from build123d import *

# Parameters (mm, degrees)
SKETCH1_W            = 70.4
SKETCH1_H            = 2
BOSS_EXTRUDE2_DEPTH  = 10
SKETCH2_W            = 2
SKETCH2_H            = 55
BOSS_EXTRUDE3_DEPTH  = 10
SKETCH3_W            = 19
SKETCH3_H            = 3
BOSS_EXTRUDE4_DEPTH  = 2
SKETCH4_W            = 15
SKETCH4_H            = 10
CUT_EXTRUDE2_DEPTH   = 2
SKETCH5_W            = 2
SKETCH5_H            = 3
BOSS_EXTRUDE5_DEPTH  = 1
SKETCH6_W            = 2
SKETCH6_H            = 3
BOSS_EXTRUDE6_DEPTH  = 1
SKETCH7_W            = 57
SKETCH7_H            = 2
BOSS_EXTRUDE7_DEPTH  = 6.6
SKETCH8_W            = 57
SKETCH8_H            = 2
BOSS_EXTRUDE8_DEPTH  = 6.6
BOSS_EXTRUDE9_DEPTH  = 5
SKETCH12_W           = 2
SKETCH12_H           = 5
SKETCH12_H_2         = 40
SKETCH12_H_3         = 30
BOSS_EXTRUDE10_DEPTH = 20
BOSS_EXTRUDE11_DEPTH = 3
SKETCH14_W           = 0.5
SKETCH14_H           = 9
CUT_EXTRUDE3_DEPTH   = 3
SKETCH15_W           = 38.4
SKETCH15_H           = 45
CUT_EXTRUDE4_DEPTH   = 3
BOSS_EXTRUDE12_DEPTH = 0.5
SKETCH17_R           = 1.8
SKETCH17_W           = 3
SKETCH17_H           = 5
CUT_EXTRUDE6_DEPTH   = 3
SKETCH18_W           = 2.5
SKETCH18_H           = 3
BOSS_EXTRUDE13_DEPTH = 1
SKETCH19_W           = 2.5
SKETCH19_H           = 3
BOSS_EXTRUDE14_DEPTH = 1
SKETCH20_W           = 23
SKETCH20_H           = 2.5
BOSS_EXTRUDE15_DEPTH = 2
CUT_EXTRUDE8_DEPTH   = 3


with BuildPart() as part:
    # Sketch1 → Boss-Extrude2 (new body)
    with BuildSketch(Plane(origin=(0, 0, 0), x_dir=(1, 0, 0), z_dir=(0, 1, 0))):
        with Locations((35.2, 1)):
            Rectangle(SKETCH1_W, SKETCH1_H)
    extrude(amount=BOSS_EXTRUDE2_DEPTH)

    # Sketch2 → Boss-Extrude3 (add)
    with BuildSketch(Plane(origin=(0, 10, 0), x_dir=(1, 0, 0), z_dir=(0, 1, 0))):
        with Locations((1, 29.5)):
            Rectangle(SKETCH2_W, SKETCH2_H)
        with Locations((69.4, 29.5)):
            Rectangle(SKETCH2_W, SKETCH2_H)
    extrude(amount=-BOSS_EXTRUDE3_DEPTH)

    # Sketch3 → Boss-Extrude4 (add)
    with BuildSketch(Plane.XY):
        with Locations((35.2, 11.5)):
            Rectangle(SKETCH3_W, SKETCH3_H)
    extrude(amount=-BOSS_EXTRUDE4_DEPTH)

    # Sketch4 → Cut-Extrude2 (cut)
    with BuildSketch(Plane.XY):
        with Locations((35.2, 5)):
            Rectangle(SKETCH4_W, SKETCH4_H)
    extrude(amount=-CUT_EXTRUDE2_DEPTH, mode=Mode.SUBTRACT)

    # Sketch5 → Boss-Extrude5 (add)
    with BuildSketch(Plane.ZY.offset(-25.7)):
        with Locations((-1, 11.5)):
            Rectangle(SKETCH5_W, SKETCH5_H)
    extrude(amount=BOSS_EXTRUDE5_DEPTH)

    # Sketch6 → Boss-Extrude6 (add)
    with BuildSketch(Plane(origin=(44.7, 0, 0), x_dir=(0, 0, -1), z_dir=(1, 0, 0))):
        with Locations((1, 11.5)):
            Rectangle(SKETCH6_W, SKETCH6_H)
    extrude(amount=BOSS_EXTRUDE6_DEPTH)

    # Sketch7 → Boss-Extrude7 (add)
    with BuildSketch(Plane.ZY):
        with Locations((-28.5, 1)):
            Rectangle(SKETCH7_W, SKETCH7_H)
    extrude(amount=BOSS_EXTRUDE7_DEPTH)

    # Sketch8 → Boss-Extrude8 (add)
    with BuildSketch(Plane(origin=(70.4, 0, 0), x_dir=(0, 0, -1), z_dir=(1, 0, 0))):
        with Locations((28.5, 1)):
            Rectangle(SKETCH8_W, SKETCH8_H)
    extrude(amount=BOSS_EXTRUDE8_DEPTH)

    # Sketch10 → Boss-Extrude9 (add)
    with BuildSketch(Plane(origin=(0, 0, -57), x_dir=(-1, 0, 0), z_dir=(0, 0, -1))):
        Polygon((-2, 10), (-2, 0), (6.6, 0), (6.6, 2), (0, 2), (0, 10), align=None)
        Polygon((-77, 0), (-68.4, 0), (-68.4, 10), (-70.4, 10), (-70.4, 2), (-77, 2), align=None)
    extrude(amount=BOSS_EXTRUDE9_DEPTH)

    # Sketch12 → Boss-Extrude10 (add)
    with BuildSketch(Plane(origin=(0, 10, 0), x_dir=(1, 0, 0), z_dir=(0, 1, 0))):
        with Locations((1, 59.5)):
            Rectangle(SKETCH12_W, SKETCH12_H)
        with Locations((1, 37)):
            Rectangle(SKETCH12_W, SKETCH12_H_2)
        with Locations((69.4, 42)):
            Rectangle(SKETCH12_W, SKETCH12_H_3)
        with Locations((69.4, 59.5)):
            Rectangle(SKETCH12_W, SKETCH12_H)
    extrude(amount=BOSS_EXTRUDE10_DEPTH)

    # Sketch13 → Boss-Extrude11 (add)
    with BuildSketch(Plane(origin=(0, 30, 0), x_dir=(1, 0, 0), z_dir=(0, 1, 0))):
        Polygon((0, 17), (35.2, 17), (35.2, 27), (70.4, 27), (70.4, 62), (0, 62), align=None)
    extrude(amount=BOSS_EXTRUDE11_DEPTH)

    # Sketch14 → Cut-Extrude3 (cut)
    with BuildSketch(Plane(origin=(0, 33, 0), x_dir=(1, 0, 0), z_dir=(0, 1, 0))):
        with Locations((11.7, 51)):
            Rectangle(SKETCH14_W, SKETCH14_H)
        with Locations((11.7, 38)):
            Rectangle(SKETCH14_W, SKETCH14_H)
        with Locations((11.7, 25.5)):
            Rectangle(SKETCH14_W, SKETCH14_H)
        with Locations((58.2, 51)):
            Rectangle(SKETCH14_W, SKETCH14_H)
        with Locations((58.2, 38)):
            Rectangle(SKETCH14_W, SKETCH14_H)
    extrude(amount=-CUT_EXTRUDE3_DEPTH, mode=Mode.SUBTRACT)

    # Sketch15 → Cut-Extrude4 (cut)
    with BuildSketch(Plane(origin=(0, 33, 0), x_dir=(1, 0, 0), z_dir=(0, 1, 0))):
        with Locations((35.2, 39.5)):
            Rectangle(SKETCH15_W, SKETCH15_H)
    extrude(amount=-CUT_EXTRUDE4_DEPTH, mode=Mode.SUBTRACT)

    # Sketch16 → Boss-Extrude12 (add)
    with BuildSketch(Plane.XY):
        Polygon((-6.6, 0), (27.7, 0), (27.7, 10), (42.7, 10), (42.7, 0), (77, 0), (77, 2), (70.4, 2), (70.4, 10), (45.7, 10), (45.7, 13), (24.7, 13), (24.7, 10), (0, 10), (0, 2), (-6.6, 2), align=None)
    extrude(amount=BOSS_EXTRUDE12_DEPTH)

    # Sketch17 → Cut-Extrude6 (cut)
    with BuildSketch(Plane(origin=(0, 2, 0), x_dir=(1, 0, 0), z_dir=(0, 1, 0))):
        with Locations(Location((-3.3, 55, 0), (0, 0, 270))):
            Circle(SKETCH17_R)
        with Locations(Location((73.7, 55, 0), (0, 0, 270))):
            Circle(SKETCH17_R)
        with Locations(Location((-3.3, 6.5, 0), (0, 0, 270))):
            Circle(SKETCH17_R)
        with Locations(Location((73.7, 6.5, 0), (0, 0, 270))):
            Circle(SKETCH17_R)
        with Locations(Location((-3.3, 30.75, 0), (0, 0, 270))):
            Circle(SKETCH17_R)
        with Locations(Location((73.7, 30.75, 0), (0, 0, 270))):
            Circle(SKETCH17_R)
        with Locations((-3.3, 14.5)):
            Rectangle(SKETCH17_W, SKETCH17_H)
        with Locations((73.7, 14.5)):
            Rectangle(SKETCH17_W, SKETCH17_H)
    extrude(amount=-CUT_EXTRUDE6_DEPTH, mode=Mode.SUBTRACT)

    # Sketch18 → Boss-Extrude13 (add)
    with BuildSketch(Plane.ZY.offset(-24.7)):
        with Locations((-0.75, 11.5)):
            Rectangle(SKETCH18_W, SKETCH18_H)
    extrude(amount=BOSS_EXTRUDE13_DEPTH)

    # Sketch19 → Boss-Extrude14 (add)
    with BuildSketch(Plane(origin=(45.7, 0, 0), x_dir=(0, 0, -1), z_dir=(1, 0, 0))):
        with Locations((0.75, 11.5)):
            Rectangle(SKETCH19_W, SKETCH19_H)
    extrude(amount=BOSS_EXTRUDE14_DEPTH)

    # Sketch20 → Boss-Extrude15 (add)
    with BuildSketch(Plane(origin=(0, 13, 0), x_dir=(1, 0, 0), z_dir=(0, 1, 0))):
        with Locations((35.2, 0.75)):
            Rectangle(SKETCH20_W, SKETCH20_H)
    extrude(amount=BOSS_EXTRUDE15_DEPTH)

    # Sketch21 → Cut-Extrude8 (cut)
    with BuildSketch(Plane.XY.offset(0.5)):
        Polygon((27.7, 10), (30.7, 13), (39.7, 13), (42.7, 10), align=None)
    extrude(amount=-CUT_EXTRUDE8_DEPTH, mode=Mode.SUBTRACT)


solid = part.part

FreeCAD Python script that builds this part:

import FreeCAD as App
import Part
import Sketcher
from FreeCAD import Vector

doc = App.newDocument("Part")
body = doc.addObject("PartDesign::Body", "Body")

# Sketch on XZ plane
sketch1 = body.newObject("Sketcher::SketchObject", "Sketch")
sketch1.AttachmentSupport = (doc.getObject("XZ_Plane"), [""])
sketch1.MapMode = "FlatFace"
sketch1.addGeometry([
    Part.LineSegment(Vector(0, -2, 0), Vector(0, 0, 0)),
    Part.LineSegment(Vector(0, 0, 0), Vector(70.4, 0, 0)),
    Part.LineSegment(Vector(70.4, 0, 0), Vector(70.4, -2, 0)),
    Part.LineSegment(Vector(70.4, -2, 0), Vector(0, -2, 0)),
], False)
sketch1.addConstraint([
    Sketcher.Constraint("Coincident", 0, 2, 1, 1),
    Sketcher.Constraint("Coincident", 1, 2, 2, 1),
    Sketcher.Constraint("Coincident", 2, 2, 3, 1),
    Sketcher.Constraint("Coincident", 3, 2, 0, 1),
    Sketcher.Constraint("Vertical", 0),
    Sketcher.Constraint("Horizontal", 1),
    Sketcher.Constraint("Vertical", 2),
    Sketcher.Constraint("Horizontal", 3),
    Sketcher.Constraint("Coincident", 0, 2, -1, 1),
    Sketcher.Constraint("DistanceY", 0, 1, 0, 2, 2.0),
    Sketcher.Constraint("DistanceX", 1, 1, 1, 2, 70.4),
])
pad1 = body.newObject("PartDesign::Pad", "Pad")
pad1.Profile = sketch1
pad1.Length = 10
pad1.Reversed = True

# Sketch on XZ plane
sketch2 = body.newObject("Sketcher::SketchObject", "Sketch001")
sketch2.AttachmentSupport = (doc.getObject("XZ_Plane"), [""])
sketch2.MapMode = "FlatFace"
sketch2.AttachmentOffset = App.Placement(Vector(0, 0, -10), App.Rotation())
sketch2.addGeometry([
    Part.LineSegment(Vector(0, -57, 0), Vector(0, -2, 0)),  # 0
    Part.LineSegment(Vector(0, -2, 0), Vector(2, -2, 0)),  # 1
    Part.LineSegment(Vector(2, -2, 0), Vector(2, -57, 0)),  # 2
    Part.LineSegment(Vector(2, -57, 0), Vector(0, -57, 0)),  # 3
    Part.LineSegment(Vector(68.4, -57, 0), Vector(68.4, -2, 0)),  # 4
    Part.LineSegment(Vector(68.4, -2, 0), Vector(70.4, -2, 0)),  # 5
    Part.LineSegment(Vector(70.4, -2, 0), Vector(70.4, -57, 0)),  # 6
    Part.LineSegment(Vector(70.4, -57, 0), Vector(68.4, -57, 0)),  # 7
], False)
sketch2.addConstraint([
    Sketcher.Constraint("Coincident", 0, 2, 1, 1),
    Sketcher.Constraint("Coincident", 1, 2, 2, 1),
    Sketcher.Constraint("Coincident", 2, 2, 3, 1),
    Sketcher.Constraint("Coincident", 3, 2, 0, 1),
    Sketcher.Constraint("Coincident", 4, 2, 5, 1),
    Sketcher.Constraint("Coincident", 5, 2, 6, 1),
    Sketcher.Constraint("Coincident", 6, 2, 7, 1),
    Sketcher.Constraint("Coincident", 7, 2, 4, 1),
    Sketcher.Constraint("Vertical", 0),
    Sketcher.Constraint("Horizontal", 1),
    Sketcher.Constraint("Vertical", 2),
    Sketcher.Constraint("Horizontal", 3),
    Sketcher.Constraint("Vertical", 4),
    Sketcher.Constraint("Horizontal", 5),
    Sketcher.Constraint("Vertical", 6),
    Sketcher.Constraint("Horizontal", 7),
    Sketcher.Constraint("PointOnObject", 0, 2, -2),
    Sketcher.Constraint("Horizontal", 1, 2, 4, 2),
    Sketcher.Constraint("Horizontal", 3, 2, 6, 2),
    Sketcher.Constraint("Equal", 3, 5),
    Sketcher.Constraint("DistanceX", 1, 1, 1, 2, 2.0),
    Sketcher.Constraint("DistanceY", 0, 1, 0, 2, 55.0),
    Sketcher.Constraint("DistanceY", 0, 2, -1, 1, 2.0),
    Sketcher.Constraint("DistanceX", -1, 1, 4, 2, 68.4),
])
pad2 = body.newObject("PartDesign::Pad", "Pad001")
pad2.Profile = sketch2
pad2.Length = 10

# Sketch on XY plane
sketch3 = body.newObject("Sketcher::SketchObject", "Sketch002")
sketch3.AttachmentSupport = (doc.getObject("XY_Plane"), [""])
sketch3.MapMode = "FlatFace"
sketch3.addGeometry([
    Part.LineSegment(Vector(25.7, 13, 0), Vector(25.7, 10, 0)),
    Part.LineSegment(Vector(25.7, 10, 0), Vector(44.7, 10, 0)),
    Part.LineSegment(Vector(44.7, 10, 0), Vector(44.7, 13, 0)),
    Part.LineSegment(Vector(44.7, 13, 0), Vector(25.7, 13, 0)),
], False)
sketch3.addConstraint([
    Sketcher.Constraint("Coincident", 0, 2, 1, 1),
    Sketcher.Constraint("Coincident", 1, 2, 2, 1),
    Sketcher.Constraint("Coincident", 2, 2, 3, 1),
    Sketcher.Constraint("Coincident", 3, 2, 0, 1),
    Sketcher.Constraint("Vertical", 0),
    Sketcher.Constraint("Horizontal", 1),
    Sketcher.Constraint("Vertical", 2),
    Sketcher.Constraint("Horizontal", 3),
    Sketcher.Constraint("DistanceX", 1, 1, 1, 2, 19.0),
    Sketcher.Constraint("DistanceY", 0, 2, 0, 1, 3.0),
    Sketcher.Constraint("DistanceY", -1, 1, 0, 2, 10.0),
    Sketcher.Constraint("DistanceX", -1, 1, 0, 2, 25.7),
])
pad3 = body.newObject("PartDesign::Pad", "Pad002")
pad3.Profile = sketch3
pad3.Length = 2
pad3.Reversed = True

# Sketch on XY plane
sketch4 = body.newObject("Sketcher::SketchObject", "Sketch003")
sketch4.AttachmentSupport = (doc.getObject("XY_Plane"), [""])
sketch4.MapMode = "FlatFace"
sketch4.addGeometry([
    Part.LineSegment(Vector(28, 10, 0), Vector(28, 0, 0)),
    Part.LineSegment(Vector(28, 0, 0), Vector(43, 0, 0)),
    Part.LineSegment(Vector(43, 0, 0), Vector(43, 10, 0)),
    Part.LineSegment(Vector(43, 10, 0), Vector(28, 10, 0)),
], False)
sketch4.addConstraint([
    Sketcher.Constraint("Coincident", 0, 2, 1, 1),
    Sketcher.Constraint("Coincident", 1, 2, 2, 1),
    Sketcher.Constraint("Coincident", 2, 2, 3, 1),
    Sketcher.Constraint("Coincident", 3, 2, 0, 1),
    Sketcher.Constraint("Vertical", 0),
    Sketcher.Constraint("Horizontal", 1),
    Sketcher.Constraint("Vertical", 2),
    Sketcher.Constraint("Horizontal", 3),
    Sketcher.Constraint("PointOnObject", 0, 2, -1),
    Sketcher.Constraint("DistanceX", 1, 1, 1, 2, 15.0),
    Sketcher.Constraint("DistanceY", 0, 2, 0, 1, 10.0),
    Sketcher.Constraint("DistanceX", -1, 1, 0, 2, 27.7),
])
pocket1 = body.newObject("PartDesign::Pocket", "Pocket")
pocket1.Profile = sketch4
pocket1.Length = 2

# Sketch on YZ plane
sketch5 = body.newObject("Sketcher::SketchObject", "Sketch004")
sketch5.AttachmentSupport = (doc.getObject("YZ_Plane"), [""])
sketch5.MapMode = "FlatFace"
sketch5.AttachmentOffset = App.Placement(Vector(0, 0, 25.7), App.Rotation())
sketch5.addGeometry([
    Part.LineSegment(Vector(13, -2, 0), Vector(10, -2, 0)),
    Part.LineSegment(Vector(10, -2, 0), Vector(10, 0, 0)),
    Part.LineSegment(Vector(10, 0, 0), Vector(13, 0, 0)),
    Part.LineSegment(Vector(13, 0, 0), Vector(13, -2, 0)),
], False)
sketch5.addConstraint([
    Sketcher.Constraint("Coincident", 0, 2, 1, 1),
    Sketcher.Constraint("Coincident", 1, 2, 2, 1),
    Sketcher.Constraint("Coincident", 2, 2, 3, 1),
    Sketcher.Constraint("Coincident", 3, 2, 0, 1),
    Sketcher.Constraint("Horizontal", 0),
    Sketcher.Constraint("Vertical", 1),
    Sketcher.Constraint("Horizontal", 2),
    Sketcher.Constraint("Vertical", 3),
    Sketcher.Constraint("PointOnObject", 1, 2, -1),
    Sketcher.Constraint("DistanceX", 0, 2, 0, 1, 3.0),
    Sketcher.Constraint("DistanceY", 1, 1, 1, 2, 2.0),
    Sketcher.Constraint("DistanceX", -1, 1, 0, 2, 10.0),
])
pad4 = body.newObject("PartDesign::Pad", "Pad003")
pad4.Profile = sketch5
pad4.Length = 1
pad4.Reversed = True

# Sketch on YZ plane
sketch6 = body.newObject("Sketcher::SketchObject", "Sketch005")
sketch6.AttachmentSupport = (doc.getObject("YZ_Plane"), [""])
sketch6.MapMode = "FlatFace"
sketch6.AttachmentOffset = App.Placement(Vector(0, 0, 44.7), App.Rotation())
sketch6.addGeometry([
    Part.LineSegment(Vector(13, 0, 0), Vector(10, 0, 0)),
    Part.LineSegment(Vector(10, 0, 0), Vector(10, -2, 0)),
    Part.LineSegment(Vector(10, -2, 0), Vector(13, -2, 0)),
    Part.LineSegment(Vector(13, -2, 0), Vector(13, 0, 0)),
], False)
sketch6.addConstraint([
    Sketcher.Constraint("Coincident", 0, 2, 1, 1),
    Sketcher.Constraint("Coincident", 1, 2, 2, 1),
    Sketcher.Constraint("Coincident", 2, 2, 3, 1),
    Sketcher.Constraint("Coincident", 3, 2, 0, 1),
    Sketcher.Constraint("Horizontal", 0),
    Sketcher.Constraint("Vertical", 1),
    Sketcher.Constraint("Horizontal", 2),
    Sketcher.Constraint("Vertical", 3),
    Sketcher.Constraint("PointOnObject", 0, 2, -1),
    Sketcher.Constraint("DistanceX", 0, 2, 0, 1, 3.0),
    Sketcher.Constraint("DistanceY", 1, 2, 1, 1, 2.0),
    Sketcher.Constraint("DistanceX", -1, 1, 0, 2, 10.0),
])
pad5 = body.newObject("PartDesign::Pad", "Pad004")
pad5.Profile = sketch6
pad5.Length = 1

# Sketch on YZ plane
sketch7 = body.newObject("Sketcher::SketchObject", "Sketch006")
sketch7.AttachmentSupport = (doc.getObject("YZ_Plane"), [""])
sketch7.MapMode = "FlatFace"
sketch7.addGeometry([
    Part.LineSegment(Vector(2, -57, 0), Vector(0, -57, 0)),
    Part.LineSegment(Vector(0, -57, 0), Vector(0, 0, 0)),
    Part.LineSegment(Vector(0, 0, 0), Vector(2, 0, 0)),
    Part.LineSegment(Vector(2, 0, 0), Vector(2, -57, 0)),
], False)
sketch7.addConstraint([
    Sketcher.Constraint("Coincident", 0, 2, 1, 1),
    Sketcher.Constraint("Coincident", 1, 2, 2, 1),
    Sketcher.Constraint("Coincident", 2, 2, 3, 1),
    Sketcher.Constraint("Coincident", 3, 2, 0, 1),
    Sketcher.Constraint("Horizontal", 0),
    Sketcher.Constraint("Vertical", 1),
    Sketcher.Constraint("Horizontal", 2),
    Sketcher.Constraint("Vertical", 3),
    Sketcher.Constraint("Coincident", 1, 2, -1, 1),
    Sketcher.Constraint("DistanceX", 0, 2, 0, 1, 2.0),
    Sketcher.Constraint("DistanceY", 1, 1, 1, 2, 57.0),
])
pad6 = body.newObject("PartDesign::Pad", "Pad005")
pad6.Profile = sketch7
pad6.Length = 6.6
pad6.Reversed = True

# Sketch on YZ plane
sketch8 = body.newObject("Sketcher::SketchObject", "Sketch007")
sketch8.AttachmentSupport = (doc.getObject("YZ_Plane"), [""])
sketch8.MapMode = "FlatFace"
sketch8.AttachmentOffset = App.Placement(Vector(0, 0, 70.4), App.Rotation())
sketch8.addGeometry([
    Part.LineSegment(Vector(2, 0, 0), Vector(0, 0, 0)),
    Part.LineSegment(Vector(0, 0, 0), Vector(0, -57, 0)),
    Part.LineSegment(Vector(0, -57, 0), Vector(2, -57, 0)),
    Part.LineSegment(Vector(2, -57, 0), Vector(2, 0, 0)),
], False)
sketch8.addConstraint([
    Sketcher.Constraint("Coincident", 0, 2, 1, 1),
    Sketcher.Constraint("Coincident", 1, 2, 2, 1),
    Sketcher.Constraint("Coincident", 2, 2, 3, 1),
    Sketcher.Constraint("Coincident", 3, 2, 0, 1),
    Sketcher.Constraint("Horizontal", 0),
    Sketcher.Constraint("Vertical", 1),
    Sketcher.Constraint("Horizontal", 2),
    Sketcher.Constraint("Vertical", 3),
    Sketcher.Constraint("Coincident", 0, 2, -1, 1),
    Sketcher.Constraint("DistanceX", 0, 2, 0, 1, 2.0),
    Sketcher.Constraint("DistanceY", 1, 2, 1, 1, 57.0),
])
pad7 = body.newObject("PartDesign::Pad", "Pad006")
pad7.Profile = sketch8
pad7.Length = 6.6

# Sketch on XY plane
sketch9 = body.newObject("Sketcher::SketchObject", "Sketch008")
sketch9.AttachmentSupport = (doc.getObject("XY_Plane"), [""])
sketch9.MapMode = "FlatFace"
sketch9.AttachmentOffset = App.Placement(Vector(0, 0, -57), App.Rotation())
sketch9.addGeometry([
    Part.LineSegment(Vector(2, 10, 0), Vector(2, 0, 0)),  # 0
    Part.LineSegment(Vector(2, 0, 0), Vector(-6.6, 0, 0)),  # 1
    Part.LineSegment(Vector(-6.6, 0, 0), Vector(-6.6, 2, 0)),  # 2
    Part.LineSegment(Vector(-6.6, 2, 0), Vector(0, 2, 0)),  # 3
    Part.LineSegment(Vector(0, 2, 0), Vector(0, 10, 0)),  # 4
    Part.LineSegment(Vector(0, 10, 0), Vector(2, 10, 0)),  # 5
    Part.LineSegment(Vector(77, 0, 0), Vector(68.4, 0, 0)),  # 6
    Part.LineSegment(Vector(68.4, 0, 0), Vector(68.4, 10, 0)),  # 7
    Part.LineSegment(Vector(68.4, 10, 0), Vector(70.4, 10, 0)),  # 8
    Part.LineSegment(Vector(70.4, 10, 0), Vector(70.4, 2, 0)),  # 9
    Part.LineSegment(Vector(70.4, 2, 0), Vector(77, 2, 0)),  # 10
    Part.LineSegment(Vector(77, 2, 0), Vector(77, 0, 0)),  # 11
], False)
sketch9.addConstraint([
    Sketcher.Constraint("Coincident", 0, 2, 1, 1),
    Sketcher.Constraint("Coincident", 1, 2, 2, 1),
    Sketcher.Constraint("Coincident", 2, 2, 3, 1),
    Sketcher.Constraint("Coincident", 3, 2, 4, 1),
    Sketcher.Constraint("Coincident", 4, 2, 5, 1),
    Sketcher.Constraint("Coincident", 5, 2, 0, 1),
    Sketcher.Constraint("Coincident", 6, 2, 7, 1),
    Sketcher.Constraint("Coincident", 7, 2, 8, 1),
    Sketcher.Constraint("Coincident", 8, 2, 9, 1),
    Sketcher.Constraint("Coincident", 9, 2, 10, 1),
    Sketcher.Constraint("Coincident", 10, 2, 11, 1),
    Sketcher.Constraint("Coincident", 11, 2, 6, 1),
    Sketcher.Constraint("Vertical", 0),
    Sketcher.Constraint("Horizontal", 1),
    Sketcher.Constraint("Vertical", 2),
    Sketcher.Constraint("Horizontal", 3),
    Sketcher.Constraint("Vertical", 4),
    Sketcher.Constraint("Horizontal", 5),
    Sketcher.Constraint("Horizontal", 6),
    Sketcher.Constraint("Vertical", 7),
    Sketcher.Constraint("Horizontal", 8),
    Sketcher.Constraint("Vertical", 9),
    Sketcher.Constraint("Horizontal", 10),
    Sketcher.Constraint("Vertical", 11),
    Sketcher.Constraint("PointOnObject", 0, 2, -1),
    Sketcher.Constraint("PointOnObject", 3, 2, -2),
    Sketcher.Constraint("PointOnObject", 6, 2, -1),
    Sketcher.Constraint("Horizontal", 5, 2, 7, 2),
    Sketcher.Constraint("Horizontal", 3, 2, 9, 2),
    Sketcher.Constraint("Equal", 1, 6),
    Sketcher.Constraint("Equal", 5, 8),
    Sketcher.Constraint("Equal", 8, 2),
    Sketcher.Constraint("DistanceX", 5, 1, 5, 2, 2.0),
    Sketcher.Constraint("DistanceY", 0, 2, 0, 1, 10.0),
    Sketcher.Constraint("DistanceX", 1, 2, 1, 1, 8.6),
    Sketcher.Constraint("DistanceX", -1, 1, 10, 2, 77.0),
])
pad8 = body.newObject("PartDesign::Pad", "Pad007")
pad8.Profile = sketch9
pad8.Length = 5
pad8.Reversed = True

# Sketch on XZ plane
sketch10 = body.newObject("Sketcher::SketchObject", "Sketch009")
sketch10.AttachmentSupport = (doc.getObject("XZ_Plane"), [""])
sketch10.MapMode = "FlatFace"
sketch10.AttachmentOffset = App.Placement(Vector(0, 0, -10), App.Rotation())
sketch10.addGeometry([
    Part.LineSegment(Vector(0, -62, 0), Vector(0, -17, 0)),  # 0
    Part.LineSegment(Vector(0, -17, 0), Vector(2, -17, 0)),  # 1
    Part.LineSegment(Vector(2, -17, 0), Vector(2, -62, 0)),  # 2
    Part.LineSegment(Vector(2, -62, 0), Vector(0, -62, 0)),  # 3
    Part.LineSegment(Vector(68.4, -27, 0), Vector(70.4, -27, 0)),  # 4
    Part.LineSegment(Vector(70.4, -27, 0), Vector(70.4, -62, 0)),  # 5
    Part.LineSegment(Vector(70.4, -62, 0), Vector(68.4, -62, 0)),  # 6
    Part.LineSegment(Vector(68.4, -62, 0), Vector(68.4, -27, 0)),  # 7
], False)
sketch10.addConstraint([
    Sketcher.Constraint("Coincident", 0, 2, 1, 1),
    Sketcher.Constraint("Coincident", 1, 2, 2, 1),
    Sketcher.Constraint("Coincident", 2, 2, 3, 1),
    Sketcher.Constraint("Coincident", 3, 2, 0, 1),
    Sketcher.Constraint("Coincident", 4, 2, 5, 1),
    Sketcher.Constraint("Coincident", 5, 2, 6, 1),
    Sketcher.Constraint("Coincident", 6, 2, 7, 1),
    Sketcher.Constraint("Coincident", 7, 2, 4, 1),
    Sketcher.Constraint("Vertical", 0),
    Sketcher.Constraint("Horizontal", 1),
    Sketcher.Constraint("Vertical", 2),
    Sketcher.Constraint("Horizontal", 3),
    Sketcher.Constraint("Horizontal", 4),
    Sketcher.Constraint("Vertical", 5),
    Sketcher.Constraint("Horizontal", 6),
    Sketcher.Constraint("Vertical", 7),
    Sketcher.Constraint("PointOnObject", 0, 2, -2),
    Sketcher.Constraint("Horizontal", 3, 2, 5, 2),
    Sketcher.Constraint("Equal", 3, 4),
    Sketcher.Constraint("DistanceX", 1, 1, 1, 2, 2.0),
    Sketcher.Constraint("DistanceY", 0, 1, 0, 2, 45.0),
    Sketcher.Constraint("DistanceY", 5, 2, 5, 1, 35.0),
    Sketcher.Constraint("DistanceY", 0, 2, -1, 1, 17.0),
    Sketcher.Constraint("DistanceX", -1, 1, 4, 2, 70.4),
])
pad9 = body.newObject("PartDesign::Pad", "Pad008")
pad9.Profile = sketch10
pad9.Length = 20
pad9.Reversed = True

# Sketch on XZ plane
sketch11 = body.newObject("Sketcher::SketchObject", "Sketch010")
sketch11.AttachmentSupport = (doc.getObject("XZ_Plane"), [""])
sketch11.MapMode = "FlatFace"
sketch11.AttachmentOffset = App.Placement(Vector(0, 0, -30), App.Rotation())
sketch11.addGeometry([
    Part.LineSegment(Vector(0, -17, 0), Vector(35, -17, 0)),  # 0
    Part.LineSegment(Vector(35, -17, 0), Vector(35, -27, 0)),  # 1
    Part.LineSegment(Vector(35, -27, 0), Vector(70, -27, 0)),  # 2
    Part.LineSegment(Vector(70, -27, 0), Vector(70, -62, 0)),  # 3
    Part.LineSegment(Vector(70, -62, 0), Vector(0, -62, 0)),  # 4
    Part.LineSegment(Vector(0, -62, 0), Vector(0, -17, 0)),  # 5
], False)
sketch11.addConstraint([
    Sketcher.Constraint("Coincident", 0, 2, 1, 1),
    Sketcher.Constraint("Coincident", 1, 2, 2, 1),
    Sketcher.Constraint("Coincident", 2, 2, 3, 1),
    Sketcher.Constraint("Coincident", 3, 2, 4, 1),
    Sketcher.Constraint("Coincident", 4, 2, 5, 1),
    Sketcher.Constraint("Coincident", 5, 2, 0, 1),
    Sketcher.Constraint("Horizontal", 0),
    Sketcher.Constraint("Vertical", 1),
    Sketcher.Constraint("Horizontal", 2),
    Sketcher.Constraint("Vertical", 3),
    Sketcher.Constraint("Horizontal", 4),
    Sketcher.Constraint("Vertical", 5),
    Sketcher.Constraint("PointOnObject", 4, 2, -2),
    Sketcher.Constraint("Equal", 0, 2),
    Sketcher.Constraint("DistanceY", 1, 2, 1, 1, 10.0),
    Sketcher.Constraint("DistanceY", 3, 2, 3, 1, 35.0),
    Sketcher.Constraint("DistanceX", 0, 1, 0, 2, 35.2),
    Sketcher.Constraint("DistanceY", 0, 2, -1, 1, 17.0),
])
pad10 = body.newObject("PartDesign::Pad", "Pad009")
pad10.Profile = sketch11
pad10.Length = 3
pad10.Reversed = True

# Sketch on XZ plane
sketch12 = body.newObject("Sketcher::SketchObject", "Sketch011")
sketch12.AttachmentSupport = (doc.getObject("XZ_Plane"), [""])
sketch12.MapMode = "FlatFace"
sketch12.AttachmentOffset = App.Placement(Vector(0, 0, -33), App.Rotation())
sketch12.addGeometry([
    Part.LineSegment(Vector(11.4, -55.5, 0), Vector(11.4, -46.5, 0)),  # 0
    Part.LineSegment(Vector(11.4, -46.5, 0), Vector(11.9, -46.5, 0)),  # 1
    Part.LineSegment(Vector(11.9, -46.5, 0), Vector(11.9, -55.5, 0)),  # 2
    Part.LineSegment(Vector(11.9, -55.5, 0), Vector(11.4, -55.5, 0)),  # 3
    Part.LineSegment(Vector(11.4, -42.5, 0), Vector(11.4, -33.5, 0)),  # 4
    Part.LineSegment(Vector(11.4, -33.5, 0), Vector(11.9, -33.5, 0)),  # 5
    Part.LineSegment(Vector(11.9, -33.5, 0), Vector(11.9, -42.5, 0)),  # 6
    Part.LineSegment(Vector(11.9, -42.5, 0), Vector(11.4, -42.5, 0)),  # 7
    Part.LineSegment(Vector(11.4, -30, 0), Vector(11.4, -21, 0)),  # 8
    Part.LineSegment(Vector(11.4, -21, 0), Vector(11.9, -21, 0)),  # 9
    Part.LineSegment(Vector(11.9, -21, 0), Vector(11.9, -30, 0)),  # 10
    Part.LineSegment(Vector(11.9, -30, 0), Vector(11.4, -30, 0)),  # 11
    Part.LineSegment(Vector(58, -55.5, 0), Vector(58, -46.5, 0)),  # 12
    Part.LineSegment(Vector(58, -46.5, 0), Vector(58.5, -46.5, 0)),  # 13
    Part.LineSegment(Vector(58.5, -46.5, 0), Vector(58.5, -55.5, 0)),  # 14
    Part.LineSegment(Vector(58.5, -55.5, 0), Vector(58, -55.5, 0)),  # 15
    Part.LineSegment(Vector(58, -42.5, 0), Vector(58, -33.5, 0)),  # 16
    Part.LineSegment(Vector(58, -33.5, 0), Vector(58.5, -33.5, 0)),  # 17
    Part.LineSegment(Vector(58.5, -33.5, 0), Vector(58.5, -42.5, 0)),  # 18
    Part.LineSegment(Vector(58.5, -42.5, 0), Vector(58, -42.5, 0)),  # 19
], False)
sketch12.addConstraint([
    Sketcher.Constraint("Coincident", 0, 2, 1, 1),
    Sketcher.Constraint("Coincident", 1, 2, 2, 1),
    Sketcher.Constraint("Coincident", 2, 2, 3, 1),
    Sketcher.Constraint("Coincident", 3, 2, 0, 1),
    Sketcher.Constraint("Coincident", 4, 2, 5, 1),
    Sketcher.Constraint("Coincident", 5, 2, 6, 1),
    Sketcher.Constraint("Coincident", 6, 2, 7, 1),
    Sketcher.Constraint("Coincident", 7, 2, 4, 1),
    Sketcher.Constraint("Coincident", 8, 2, 9, 1),
    Sketcher.Constraint("Coincident", 9, 2, 10, 1),
    Sketcher.Constraint("Coincident", 10, 2, 11, 1),
    Sketcher.Constraint("Coincident", 11, 2, 8, 1),
    Sketcher.Constraint("Coincident", 12, 2, 13, 1),
    Sketcher.Constraint("Coincident", 13, 2, 14, 1),
    Sketcher.Constraint("Coincident", 14, 2, 15, 1),
    Sketcher.Constraint("Coincident", 15, 2, 12, 1),
    Sketcher.Constraint("Coincident", 16, 2, 17, 1),
    Sketcher.Constraint("Coincident", 17, 2, 18, 1),
    Sketcher.Constraint("Coincident", 18, 2, 19, 1),
    Sketcher.Constraint("Coincident", 19, 2, 16, 1),
    Sketcher.Constraint("Vertical", 0),
    Sketcher.Constraint("Horizontal", 1),
    Sketcher.Constraint("Vertical", 2),
    Sketcher.Constraint("Horizontal", 3),
    Sketcher.Constraint("Vertical", 4),
    Sketcher.Constraint("Horizontal", 5),
    Sketcher.Constraint("Vertical", 6),
    Sketcher.Constraint("Horizontal", 7),
    Sketcher.Constraint("Vertical", 8),
    Sketcher.Constraint("Horizontal", 9),
    Sketcher.Constraint("Vertical", 10),
    Sketcher.Constraint("Horizontal", 11),
    Sketcher.Constraint("Vertical", 12),
    Sketcher.Constraint("Horizontal", 13),
    Sketcher.Constraint("Vertical", 14),
    Sketcher.Constraint("Horizontal", 15),
    Sketcher.Constraint("Vertical", 16),
    Sketcher.Constraint("Horizontal", 17),
    Sketcher.Constraint("Vertical", 18),
    Sketcher.Constraint("Horizontal", 19),
    Sketcher.Constraint("Horizontal", 1, 2, 12, 2),
    Sketcher.Constraint("Horizontal", 3, 2, 14, 2),
    Sketcher.Constraint("Horizontal", 5, 2, 16, 2),
    Sketcher.Constraint("Horizontal", 7, 2, 18, 2),
    Sketcher.Constraint("Vertical", 3, 2, 4, 2),
    Sketcher.Constraint("Vertical", 2, 2, 5, 2),
    Sketcher.Constraint("Vertical", 7, 2, 8, 2),
    Sketcher.Constraint("Vertical", 6, 2, 9, 2),
    Sketcher.Constraint("Vertical", 15, 2, 16, 2),
    Sketcher.Constraint("Vertical", 14, 2, 17, 2),
    Sketcher.Constraint("Equal", 11, 13),
    Sketcher.Constraint("Equal", 2, 4),
    Sketcher.Constraint("Equal", 6, 8),
    Sketcher.Constraint("DistanceY", 0, 1, 0, 2, 9.0),
    Sketcher.Constraint("DistanceX", 1, 1, 1, 2, 0.5),
    Sketcher.Constraint("DistanceY", 8, 2, -1, 1, 21.0),
    Sketcher.Constraint("DistanceY", 0, 2, 4, 2, 13.0),
    Sketcher.Constraint("DistanceX", 1, 2, 12, 2, 46.0),
    Sketcher.Constraint("DistanceY", 0, 2, -1, 1, 46.5),
    Sketcher.Constraint("DistanceX", -1, 1, 0, 2, 11.45),
])
pocket2 = body.newObject("PartDesign::Pocket", "Pocket001")
pocket2.Profile = sketch12
pocket2.Length = 3
pocket2.Reversed = True

# Sketch on XZ plane
sketch13 = body.newObject("Sketcher::SketchObject", "Sketch012")
sketch13.AttachmentSupport = (doc.getObject("XZ_Plane"), [""])
sketch13.MapMode = "FlatFace"
sketch13.AttachmentOffset = App.Placement(Vector(0, 0, -33), App.Rotation())
sketch13.addGeometry([
    Part.LineSegment(Vector(16, -62, 0), Vector(16, -17, 0)),
    Part.LineSegment(Vector(16, -17, 0), Vector(54, -17, 0)),
    Part.LineSegment(Vector(54, -17, 0), Vector(54, -62, 0)),
    Part.LineSegment(Vector(54, -62, 0), Vector(16, -62, 0)),
], False)
sketch13.addConstraint([
    Sketcher.Constraint("Coincident", 0, 2, 1, 1),
    Sketcher.Constraint("Coincident", 1, 2, 2, 1),
    Sketcher.Constraint("Coincident", 2, 2, 3, 1),
    Sketcher.Constraint("Coincident", 3, 2, 0, 1),
    Sketcher.Constraint("Vertical", 0),
    Sketcher.Constraint("Horizontal", 1),
    Sketcher.Constraint("Vertical", 2),
    Sketcher.Constraint("Horizontal", 3),
    Sketcher.Constraint("DistanceY", 0, 1, 0, 2, 45.0),
    Sketcher.Constraint("DistanceX", 1, 1, 1, 2, 38.4),
    Sketcher.Constraint("DistanceX", -1, 1, 0, 2, 16.0),
    Sketcher.Constraint("DistanceY", 0, 2, -1, 1, 17.0),
])
pocket3 = body.newObject("PartDesign::Pocket", "Pocket002")
pocket3.Profile = sketch13
pocket3.Length = 3
pocket3.Reversed = True

# Sketch on XY plane
sketch14 = body.newObject("Sketcher::SketchObject", "Sketch013")
sketch14.AttachmentSupport = (doc.getObject("XY_Plane"), [""])
sketch14.MapMode = "FlatFace"
sketch14.addGeometry([
    Part.LineSegment(Vector(-6.6, 0, 0), Vector(27.7, 0, 0)),  # 0
    Part.LineSegment(Vector(27.7, 0, 0), Vector(27.7, 10, 0)),  # 1
    Part.LineSegment(Vector(27.7, 10, 0), Vector(42.7, 10, 0)),  # 2
    Part.LineSegment(Vector(42.7, 10, 0), Vector(42.7, 0, 0)),  # 3
    Part.LineSegment(Vector(42.7, 0, 0), Vector(77, 0, 0)),  # 4
    Part.LineSegment(Vector(77, 0, 0), Vector(77, 2, 0)),  # 5
    Part.LineSegment(Vector(77, 2, 0), Vector(70.4, 2, 0)),  # 6
    Part.LineSegment(Vector(70.4, 2, 0), Vector(70.4, 10, 0)),  # 7
    Part.LineSegment(Vector(70.4, 10, 0), Vector(45.7, 10, 0)),  # 8
    Part.LineSegment(Vector(45.7, 10, 0), Vector(45.7, 13, 0)),  # 9
    Part.LineSegment(Vector(45.7, 13, 0), Vector(24.7, 13, 0)),  # 10
    Part.LineSegment(Vector(24.7, 13, 0), Vector(24.7, 10, 0)),  # 11
    Part.LineSegment(Vector(24.7, 10, 0), Vector(0, 10, 0)),  # 12
    Part.LineSegment(Vector(0, 10, 0), Vector(0, 2, 0)),  # 13
    Part.LineSegment(Vector(0, 2, 0), Vector(-6.6, 2, 0)),  # 14
    Part.LineSegment(Vector(-6.6, 2, 0), Vector(-6.6, 0, 0)),  # 15
], False)
sketch14.addConstraint([
    Sketcher.Constraint("Coincident", 0, 2, 1, 1),
    Sketcher.Constraint("Coincident", 1, 2, 2, 1),
    Sketcher.Constraint("Coincident", 2, 2, 3, 1),
    Sketcher.Constraint("Coincident", 3, 2, 4, 1),
    Sketcher.Constraint("Coincident", 4, 2, 5, 1),
    Sketcher.Constraint("Coincident", 5, 2, 6, 1),
    Sketcher.Constraint("Coincident", 6, 2, 7, 1),
    Sketcher.Constraint("Coincident", 7, 2, 8, 1),
    Sketcher.Constraint("Coincident", 8, 2, 9, 1),
    Sketcher.Constraint("Coincident", 9, 2, 10, 1),
    Sketcher.Constraint("Coincident", 10, 2, 11, 1),
    Sketcher.Constraint("Coincident", 11, 2, 12, 1),
    Sketcher.Constraint("Coincident", 12, 2, 13, 1),
    Sketcher.Constraint("Coincident", 13, 2, 14, 1),
    Sketcher.Constraint("Coincident", 14, 2, 15, 1),
    Sketcher.Constraint("Coincident", 15, 2, 0, 1),
    Sketcher.Constraint("Horizontal", 0),
    Sketcher.Constraint("Vertical", 1),
    Sketcher.Constraint("Horizontal", 2),
    Sketcher.Constraint("Vertical", 3),
    Sketcher.Constraint("Horizontal", 4),
    Sketcher.Constraint("Vertical", 5),
    Sketcher.Constraint("Horizontal", 6),
    Sketcher.Constraint("Vertical", 7),
    Sketcher.Constraint("Horizontal", 8),
    Sketcher.Constraint("Vertical", 9),
    Sketcher.Constraint("Horizontal", 10),
    Sketcher.Constraint("Vertical", 11),
    Sketcher.Constraint("Horizontal", 12),
    Sketcher.Constraint("Vertical", 13),
    Sketcher.Constraint("Horizontal", 14),
    Sketcher.Constraint("Vertical", 15),
    Sketcher.Constraint("PointOnObject", 0, 2, -1),
    Sketcher.Constraint("PointOnObject", 3, 2, -1),
    Sketcher.Constraint("PointOnObject", 12, 2, -2),
    Sketcher.Constraint("Horizontal", 2, 2, 7, 2),
    Sketcher.Constraint("Horizontal", 8, 2, 11, 2),
    Sketcher.Constraint("Horizontal", 6, 2, 13, 2),
    Sketcher.Constraint("Equal", 0, 4),
    Sketcher.Constraint("Equal", 8, 12),
    Sketcher.Constraint("Equal", 6, 14),
    Sketcher.Constraint("DistanceX", 2, 1, 2, 2, 15.0),
    Sketcher.Constraint("DistanceX", 10, 2, 10, 1, 21.0),
    Sketcher.Constraint("DistanceY", 1, 1, 1, 2, 10.0),
    Sketcher.Constraint("DistanceY", 5, 1, 5, 2, 2.0),
    Sketcher.Constraint("DistanceY", 9, 1, 9, 2, 3.0),
    Sketcher.Constraint("DistanceX", 0, 1, 0, 2, 34.3),
    Sketcher.Constraint("DistanceX", 6, 2, 6, 1, 6.6),
])
pad11 = body.newObject("PartDesign::Pad", "Pad010")
pad11.Profile = sketch14
pad11.Length = 0.5

# Sketch on XZ plane
sketch15 = body.newObject("Sketcher::SketchObject", "Sketch014")
sketch15.AttachmentSupport = (doc.getObject("XZ_Plane"), [""])
sketch15.MapMode = "FlatFace"
sketch15.AttachmentOffset = App.Placement(Vector(0, 0, -2), App.Rotation())
sketch15.addGeometry([
    Part.Circle(Vector(-3.3, -55, 0), Vector(0, 0, 1), 1.8),  # 0
    Part.Circle(Vector(73.7, -55, 0), Vector(0, 0, 1), 1.8),  # 1
    Part.Circle(Vector(-3.3, -6.5, 0), Vector(0, 0, 1), 1.8),  # 2
    Part.Circle(Vector(73.7, -6.5, 0), Vector(0, 0, 1), 1.8),  # 3
    Part.Circle(Vector(-3.3, -30.8, 0), Vector(0, 0, 1), 1.8),  # 4
    Part.Circle(Vector(73.7, -30.8, 0), Vector(0, 0, 1), 1.8),  # 5
    Part.LineSegment(Vector(-4.8, -17, 0), Vector(-4.8, -12, 0)),  # 6
    Part.LineSegment(Vector(-4.8, -12, 0), Vector(-1.8, -12, 0)),  # 7
    Part.LineSegment(Vector(-1.8, -12, 0), Vector(-1.8, -17, 0)),  # 8
    Part.LineSegment(Vector(-1.8, -17, 0), Vector(-4.8, -17, 0)),  # 9
    Part.LineSegment(Vector(72.2, -17, 0), Vector(72.2, -12, 0)),  # 10
    Part.LineSegment(Vector(72.2, -12, 0), Vector(75.2, -12, 0)),  # 11
    Part.LineSegment(Vector(75.2, -12, 0), Vector(75.2, -17, 0)),  # 12
    Part.LineSegment(Vector(75.2, -17, 0), Vector(72.2, -17, 0)),  # 13
], False)
sketch15.addConstraint([
    Sketcher.Constraint("Coincident", 6, 2, 7, 1),
    Sketcher.Constraint("Coincident", 7, 2, 8, 1),
    Sketcher.Constraint("Coincident", 8, 2, 9, 1),
    Sketcher.Constraint("Coincident", 9, 2, 6, 1),
    Sketcher.Constraint("Coincident", 10, 2, 11, 1),
    Sketcher.Constraint("Coincident", 11, 2, 12, 1),
    Sketcher.Constraint("Coincident", 12, 2, 13, 1),
    Sketcher.Constraint("Coincident", 13, 2, 10, 1),
    Sketcher.Constraint("Vertical", 6),
    Sketcher.Constraint("Horizontal", 7),
    Sketcher.Constraint("Vertical", 8),
    Sketcher.Constraint("Horizontal", 9),
    Sketcher.Constraint("Vertical", 10),
    Sketcher.Constraint("Horizontal", 11),
    Sketcher.Constraint("Vertical", 12),
    Sketcher.Constraint("Horizontal", 13),
    Sketcher.Constraint("Equal", 0, 1),
    Sketcher.Constraint("Equal", 1, 2),
    Sketcher.Constraint("Equal", 2, 3),
    Sketcher.Constraint("Equal", 3, 4),
    Sketcher.Constraint("Equal", 4, 5),
    Sketcher.Constraint("Horizontal", 0, 3, 1, 3),
    Sketcher.Constraint("Horizontal", 2, 3, 3, 3),
    Sketcher.Constraint("Horizontal", 4, 3, 5, 3),
    Sketcher.Constraint("Horizontal", 7, 2, 10, 2),
    Sketcher.Constraint("Horizontal", 9, 2, 12, 2),
    Sketcher.Constraint("Vertical", 0, 3, 2, 3),
    Sketcher.Constraint("Vertical", 1, 3, 3, 3),
    Sketcher.Constraint("Vertical", 2, 3, 4, 3),
    Sketcher.Constraint("Vertical", 3, 3, 5, 3),
    Sketcher.Constraint("Equal", 9, 11),
    Sketcher.Constraint("Diameter", 0, 3.6),
    Sketcher.Constraint("DistanceX", 7, 1, 7, 2, 3.0),
    Sketcher.Constraint("DistanceY", 6, 1, 6, 2, 5.0),
    Sketcher.Constraint("DistanceY", 0, 3, -1, 1, 55.0),
    Sketcher.Constraint("DistanceY", 6, 2, -1, 1, 12.0),
    Sketcher.Constraint("DistanceX", 0, 3, 1, 3, 77.0),
    Sketcher.Constraint("DistanceX", 7, 2, 10, 2, 74.0),
    Sketcher.Constraint("DistanceX", 0, 3, -1, 1, 3.3),
    Sketcher.Constraint("DistanceY", 2, 3, -1, 1, 6.5),
    Sketcher.Constraint("DistanceX", 6, 2, -1, 1, 4.8),
    Sketcher.Constraint("DistanceY", 4, 3, -1, 1, 30.75),
])
pocket4 = body.newObject("PartDesign::Pocket", "Pocket003")
pocket4.Profile = sketch15
pocket4.Length = 3
pocket4.Reversed = True

# Sketch on YZ plane
sketch16 = body.newObject("Sketcher::SketchObject", "Sketch015")
sketch16.AttachmentSupport = (doc.getObject("YZ_Plane"), [""])
sketch16.MapMode = "FlatFace"
sketch16.AttachmentOffset = App.Placement(Vector(0, 0, 24.7), App.Rotation())
sketch16.addGeometry([
    Part.LineSegment(Vector(13, -2, 0), Vector(10, -2, 0)),
    Part.LineSegment(Vector(10, -2, 0), Vector(10, 0.5, 0)),
    Part.LineSegment(Vector(10, 0.5, 0), Vector(13, 0.5, 0)),
    Part.LineSegment(Vector(13, 0.5, 0), Vector(13, -2, 0)),
], False)
sketch16.addConstraint([
    Sketcher.Constraint("Coincident", 0, 2, 1, 1),
    Sketcher.Constraint("Coincident", 1, 2, 2, 1),
    Sketcher.Constraint("Coincident", 2, 2, 3, 1),
    Sketcher.Constraint("Coincident", 3, 2, 0, 1),
    Sketcher.Constraint("Horizontal", 0),
    Sketcher.Constraint("Vertical", 1),
    Sketcher.Constraint("Horizontal", 2),
    Sketcher.Constraint("Vertical", 3),
    Sketcher.Constraint("DistanceX", 0, 2, 0, 1, 3.0),
    Sketcher.Constraint("DistanceY", 1, 1, 1, 2, 2.5),
    Sketcher.Constraint("DistanceX", -1, 1, 0, 2, 10.0),
    Sketcher.Constraint("DistanceY", 0, 2, -1, 1, 2.0),
])
pad12 = body.newObject("PartDesign::Pad", "Pad011")
pad12.Profile = sketch16
pad12.Length = 1
pad12.Reversed = True

# Sketch on YZ plane
sketch17 = body.newObject("Sketcher::SketchObject", "Sketch016")
sketch17.AttachmentSupport = (doc.getObject("YZ_Plane"), [""])
sketch17.MapMode = "FlatFace"
sketch17.AttachmentOffset = App.Placement(Vector(0, 0, 45.7), App.Rotation())
sketch17.addGeometry([
    Part.LineSegment(Vector(13, 0.5, 0), Vector(10, 0.5, 0)),
    Part.LineSegment(Vector(10, 0.5, 0), Vector(10, -2, 0)),
    Part.LineSegment(Vector(10, -2, 0), Vector(13, -2, 0)),
    Part.LineSegment(Vector(13, -2, 0), Vector(13, 0.5, 0)),
], False)
sketch17.addConstraint([
    Sketcher.Constraint("Coincident", 0, 2, 1, 1),
    Sketcher.Constraint("Coincident", 1, 2, 2, 1),
    Sketcher.Constraint("Coincident", 2, 2, 3, 1),
    Sketcher.Constraint("Coincident", 3, 2, 0, 1),
    Sketcher.Constraint("Horizontal", 0),
    Sketcher.Constraint("Vertical", 1),
    Sketcher.Constraint("Horizontal", 2),
    Sketcher.Constraint("Vertical", 3),
    Sketcher.Constraint("DistanceX", 0, 2, 0, 1, 3.0),
    Sketcher.Constraint("DistanceY", 1, 2, 1, 1, 2.5),
    Sketcher.Constraint("DistanceX", -1, 1, 0, 2, 10.0),
    Sketcher.Constraint("DistanceY", 1, 2, -1, 1, 2.0),
])
pad13 = body.newObject("PartDesign::Pad", "Pad012")
pad13.Profile = sketch17
pad13.Length = 1

# Sketch on XZ plane
sketch18 = body.newObject("Sketcher::SketchObject", "Sketch017")
sketch18.AttachmentSupport = (doc.getObject("XZ_Plane"), [""])
sketch18.MapMode = "FlatFace"
sketch18.AttachmentOffset = App.Placement(Vector(0, 0, -13), App.Rotation())
sketch18.addGeometry([
    Part.LineSegment(Vector(23.7, -2, 0), Vector(23.7, 0.5, 0)),
    Part.LineSegment(Vector(23.7, 0.5, 0), Vector(46.7, 0.5, 0)),
    Part.LineSegment(Vector(46.7, 0.5, 0), Vector(46.7, -2, 0)),
    Part.LineSegment(Vector(46.7, -2, 0), Vector(23.7, -2, 0)),
], False)
sketch18.addConstraint([
    Sketcher.Constraint("Coincident", 0, 2, 1, 1),
    Sketcher.Constraint("Coincident", 1, 2, 2, 1),
    Sketcher.Constraint("Coincident", 2, 2, 3, 1),
    Sketcher.Constraint("Coincident", 3, 2, 0, 1),
    Sketcher.Constraint("Vertical", 0),
    Sketcher.Constraint("Horizontal", 1),
    Sketcher.Constraint("Vertical", 2),
    Sketcher.Constraint("Horizontal", 3),
    Sketcher.Constraint("DistanceX", 1, 1, 1, 2, 23.0),
    Sketcher.Constraint("DistanceY", 0, 1, 0, 2, 2.5),
    Sketcher.Constraint("DistanceY", 2, 2, -1, 1, 2.0),
    Sketcher.Constraint("DistanceX", -1, 1, 0, 2, 23.7),
])
pad14 = body.newObject("PartDesign::Pad", "Pad013")
pad14.Profile = sketch18
pad14.Length = 2
pad14.Reversed = True

# Sketch on XY plane
sketch19 = body.newObject("Sketcher::SketchObject", "Sketch018")
sketch19.AttachmentSupport = (doc.getObject("XY_Plane"), [""])
sketch19.MapMode = "FlatFace"
sketch19.AttachmentOffset = App.Placement(Vector(0, 0, 0.5), App.Rotation())
sketch19.addGeometry([
    Part.LineSegment(Vector(30.7, 13, 0), Vector(27.7, 10, 0)),
    Part.LineSegment(Vector(27.7, 10, 0), Vector(42.7, 10, 0)),
    Part.LineSegment(Vector(42.7, 10, 0), Vector(39.7, 13, 0)),
    Part.LineSegment(Vector(39.7, 13, 0), Vector(30.7, 13, 0)),
], False)
sketch19.addConstraint([
    Sketcher.Constraint("Coincident", 0, 2, 1, 1),
    Sketcher.Constraint("Coincident", 1, 2, 2, 1),
    Sketcher.Constraint("Coincident", 2, 2, 3, 1),
    Sketcher.Constraint("Coincident", 3, 2, 0, 1),
    Sketcher.Constraint("Horizontal", 1),
    Sketcher.Constraint("Horizontal", 3),
    Sketcher.Constraint("Perpendicular", 0, 2),
    Sketcher.Constraint("Equal", 0, 2),
    Sketcher.Constraint("DistanceX", 1, 1, 1, 2, 15.0),
    Sketcher.Constraint("DistanceX", 3, 2, 3, 1, 9.0),
    Sketcher.Constraint("DistanceY", -1, 1, 0, 2, 10.0),
    Sketcher.Constraint("DistanceX", -1, 1, 0, 2, 27.7),
])
pocket5 = body.newObject("PartDesign::Pocket", "Pocket004")
pocket5.Profile = sketch19
pocket5.Length = 3

doc.recompute()
